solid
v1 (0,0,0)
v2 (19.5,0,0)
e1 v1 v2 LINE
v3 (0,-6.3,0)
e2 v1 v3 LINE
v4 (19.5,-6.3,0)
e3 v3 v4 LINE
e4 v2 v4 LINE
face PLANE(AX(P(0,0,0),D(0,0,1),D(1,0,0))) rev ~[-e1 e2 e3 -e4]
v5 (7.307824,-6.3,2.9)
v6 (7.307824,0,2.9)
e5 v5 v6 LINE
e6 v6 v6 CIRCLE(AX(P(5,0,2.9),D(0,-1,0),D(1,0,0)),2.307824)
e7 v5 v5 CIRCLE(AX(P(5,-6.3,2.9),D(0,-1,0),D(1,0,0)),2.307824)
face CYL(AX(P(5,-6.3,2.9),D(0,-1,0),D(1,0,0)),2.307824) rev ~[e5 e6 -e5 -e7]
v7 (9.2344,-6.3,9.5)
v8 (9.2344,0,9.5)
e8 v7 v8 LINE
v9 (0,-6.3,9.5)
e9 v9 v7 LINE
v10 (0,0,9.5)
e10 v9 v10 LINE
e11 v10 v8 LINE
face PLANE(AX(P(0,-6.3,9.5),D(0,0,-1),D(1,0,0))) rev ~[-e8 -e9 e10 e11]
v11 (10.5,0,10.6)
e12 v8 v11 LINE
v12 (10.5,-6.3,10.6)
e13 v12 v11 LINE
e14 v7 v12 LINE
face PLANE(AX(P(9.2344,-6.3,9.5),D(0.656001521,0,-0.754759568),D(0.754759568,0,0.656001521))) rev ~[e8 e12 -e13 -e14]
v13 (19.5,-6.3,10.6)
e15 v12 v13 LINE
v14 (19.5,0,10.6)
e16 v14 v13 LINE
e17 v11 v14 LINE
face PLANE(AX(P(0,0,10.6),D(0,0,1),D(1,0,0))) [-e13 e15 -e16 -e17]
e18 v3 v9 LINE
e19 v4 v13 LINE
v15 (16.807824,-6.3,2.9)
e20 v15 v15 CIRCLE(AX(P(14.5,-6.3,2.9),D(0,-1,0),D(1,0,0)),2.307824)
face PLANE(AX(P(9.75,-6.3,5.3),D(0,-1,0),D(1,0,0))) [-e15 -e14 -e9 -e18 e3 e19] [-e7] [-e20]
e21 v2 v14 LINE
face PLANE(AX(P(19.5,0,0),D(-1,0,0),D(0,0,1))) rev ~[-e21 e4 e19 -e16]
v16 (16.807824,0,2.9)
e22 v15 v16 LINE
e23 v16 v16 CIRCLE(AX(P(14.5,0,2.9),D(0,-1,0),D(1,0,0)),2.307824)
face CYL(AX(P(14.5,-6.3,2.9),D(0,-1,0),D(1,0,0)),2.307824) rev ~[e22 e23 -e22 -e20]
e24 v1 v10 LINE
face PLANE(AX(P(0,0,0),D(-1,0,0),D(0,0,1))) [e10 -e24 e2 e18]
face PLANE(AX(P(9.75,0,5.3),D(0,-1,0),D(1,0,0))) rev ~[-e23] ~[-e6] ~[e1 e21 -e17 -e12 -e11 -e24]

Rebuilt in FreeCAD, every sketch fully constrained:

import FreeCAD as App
import Part
import Sketcher

V = App.Vector


def add_polygon(sketch, points):
    """Adds a closed chain of lines whose ends are joined by coincident constraints."""
    first, n = sketch.GeometryCount, len(points)
    for a, b in zip(points, points[1:] + points[:1]):
        sketch.addGeometry(Part.LineSegment(App.Vector(*a, 0), App.Vector(*b, 0)), False)
    for i in range(n):
        sketch.addConstraint(Sketcher.Constraint("Coincident", first + i, 2, first + (i + 1) % n, 1))

doc = App.newDocument("Part")
params = doc.addObject("Spreadsheet::Sheet", "Params")
for row, (alias, value) in enumerate([
    ("sketch1_width", "19.5 mm"),
    ("sketch1_height", "10.6 mm"),
    ("pad1_length", "6.3 mm"),
    ("pocket1_length", "25 mm"),
    ("sketch3_width", "10.5 mm"),
    ("sketch3_height", "1.1 mm"),
    ("pocket2_length", "25 mm"),
], start=1):
    params.set(f"A{row}", alias)
    params.set(f"B{row}", "=" + value)
    params.setAlias(f"B{row}", alias)

body = doc.addObject("PartDesign::Body", "Body")

sketch1 = body.newObject("Sketcher::SketchObject", "Sketch")
sketch1.AttachmentSupport = (doc.getObject("XZ_Plane"), [""])
sketch1.MapMode = "FlatFace"
add_polygon(sketch1, [(0, 10.6), (0, 0), (19.5, 0), (19.5, 10.6)])
sketch1.addConstraint([
    Sketcher.Constraint("Vertical", 0),
    Sketcher.Constraint("Horizontal", 1),
    Sketcher.Constraint("Vertical", 2),
    Sketcher.Constraint("Horizontal", 3),
    Sketcher.Constraint("Coincident", 0, 2, -1, 1),
    Sketcher.Constraint("DistanceX", 1, 1, 1, 2, 19.5),
    Sketcher.Constraint("DistanceY", 0, 2, 0, 1, 10.6),
])
sketch1.setExpression("Constraints[9]", "Params.sketch1_width")
sketch1.setExpression("Constraints[10]", "Params.sketch1_height")
pad1 = body.newObject("PartDesign::Pad", "Pad")
pad1.Profile = sketch1
pad1.setExpression("Length", "Params.pad1_length")

sketch2 = body.newObject("Sketcher::SketchObject", "Sketch001")
sketch2.AttachmentSupport = (doc.getObject("XZ_Plane"), [""])
sketch2.MapMode = "FlatFace"
sketch2.AttachmentOffset = App.Placement(V(0, 0, 6.3), App.Rotation())
sketch2.addGeometry([
    Part.Circle(V(5, 2.9, 0), V(0, 0, 1), 2.307824),
    Part.Circle(V(14.5, 2.9, 0), V(0, 0, 1), 2.307824),
], False)
sketch2.addConstraint([
    Sketcher.Constraint("Equal", 0, 1),
    Sketcher.Constraint("Horizontal", 0, 3, 1, 3),
    Sketcher.Constraint("DistanceX", -1, 1, 0, 3, 5.0),
    Sketcher.Constraint("DistanceY", -1, 1, 0, 3, 2.9),
    Sketcher.Constraint("DistanceX", -1, 1, 1, 3, 14.5),
    Sketcher.Constraint("Diameter", 0, 4.615648),
])
pocket1 = body.newObject("PartDesign::Pocket", "Pocket")
pocket1.Profile = sketch2
pocket1.setExpression("Length", "Params.pocket1_length")

sketch3 = body.newObject("Sketcher::SketchObject", "Sketch002")
sketch3.AttachmentSupport = (doc.getObject("XZ_Plane"), [""])
sketch3.MapMode = "FlatFace"
sketch3.AttachmentOffset = App.Placement(V(0, 0, 6.3), App.Rotation())
add_polygon(sketch3, [(10.5, 10.6), (0, 10.6), (0, 9.5), (9.2344, 9.5)])
sketch3.addConstraint([
    Sketcher.Constraint("Horizontal", 0),
    Sketcher.Constraint("Vertical", 1),
    Sketcher.Constraint("Horizontal", 2),
    Sketcher.Constraint("PointOnObject", 0, 2, -2),
    Sketcher.Constraint("DistanceX", 0, 2, 0, 1, 10.5),
    Sketcher.Constraint("DistanceY", 1, 2, 1, 1, 1.1),
    Sketcher.Constraint("DistanceY", -1, 1, 0, 2, 10.6),
    Sketcher.Constraint("DistanceX", 2, 1, 2, 2, 9.2344),
])
sketch3.setExpression("Constraints[8]", "Params.sketch3_width")
sketch3.setExpression("Constraints[9]", "Params.sketch3_height")
pocket2 = body.newObject("PartDesign::Pocket", "Pocket001")
pocket2.Profile = sketch3
pocket2.setExpression("Length", "Params.pocket2_length")

doc.recompute()
